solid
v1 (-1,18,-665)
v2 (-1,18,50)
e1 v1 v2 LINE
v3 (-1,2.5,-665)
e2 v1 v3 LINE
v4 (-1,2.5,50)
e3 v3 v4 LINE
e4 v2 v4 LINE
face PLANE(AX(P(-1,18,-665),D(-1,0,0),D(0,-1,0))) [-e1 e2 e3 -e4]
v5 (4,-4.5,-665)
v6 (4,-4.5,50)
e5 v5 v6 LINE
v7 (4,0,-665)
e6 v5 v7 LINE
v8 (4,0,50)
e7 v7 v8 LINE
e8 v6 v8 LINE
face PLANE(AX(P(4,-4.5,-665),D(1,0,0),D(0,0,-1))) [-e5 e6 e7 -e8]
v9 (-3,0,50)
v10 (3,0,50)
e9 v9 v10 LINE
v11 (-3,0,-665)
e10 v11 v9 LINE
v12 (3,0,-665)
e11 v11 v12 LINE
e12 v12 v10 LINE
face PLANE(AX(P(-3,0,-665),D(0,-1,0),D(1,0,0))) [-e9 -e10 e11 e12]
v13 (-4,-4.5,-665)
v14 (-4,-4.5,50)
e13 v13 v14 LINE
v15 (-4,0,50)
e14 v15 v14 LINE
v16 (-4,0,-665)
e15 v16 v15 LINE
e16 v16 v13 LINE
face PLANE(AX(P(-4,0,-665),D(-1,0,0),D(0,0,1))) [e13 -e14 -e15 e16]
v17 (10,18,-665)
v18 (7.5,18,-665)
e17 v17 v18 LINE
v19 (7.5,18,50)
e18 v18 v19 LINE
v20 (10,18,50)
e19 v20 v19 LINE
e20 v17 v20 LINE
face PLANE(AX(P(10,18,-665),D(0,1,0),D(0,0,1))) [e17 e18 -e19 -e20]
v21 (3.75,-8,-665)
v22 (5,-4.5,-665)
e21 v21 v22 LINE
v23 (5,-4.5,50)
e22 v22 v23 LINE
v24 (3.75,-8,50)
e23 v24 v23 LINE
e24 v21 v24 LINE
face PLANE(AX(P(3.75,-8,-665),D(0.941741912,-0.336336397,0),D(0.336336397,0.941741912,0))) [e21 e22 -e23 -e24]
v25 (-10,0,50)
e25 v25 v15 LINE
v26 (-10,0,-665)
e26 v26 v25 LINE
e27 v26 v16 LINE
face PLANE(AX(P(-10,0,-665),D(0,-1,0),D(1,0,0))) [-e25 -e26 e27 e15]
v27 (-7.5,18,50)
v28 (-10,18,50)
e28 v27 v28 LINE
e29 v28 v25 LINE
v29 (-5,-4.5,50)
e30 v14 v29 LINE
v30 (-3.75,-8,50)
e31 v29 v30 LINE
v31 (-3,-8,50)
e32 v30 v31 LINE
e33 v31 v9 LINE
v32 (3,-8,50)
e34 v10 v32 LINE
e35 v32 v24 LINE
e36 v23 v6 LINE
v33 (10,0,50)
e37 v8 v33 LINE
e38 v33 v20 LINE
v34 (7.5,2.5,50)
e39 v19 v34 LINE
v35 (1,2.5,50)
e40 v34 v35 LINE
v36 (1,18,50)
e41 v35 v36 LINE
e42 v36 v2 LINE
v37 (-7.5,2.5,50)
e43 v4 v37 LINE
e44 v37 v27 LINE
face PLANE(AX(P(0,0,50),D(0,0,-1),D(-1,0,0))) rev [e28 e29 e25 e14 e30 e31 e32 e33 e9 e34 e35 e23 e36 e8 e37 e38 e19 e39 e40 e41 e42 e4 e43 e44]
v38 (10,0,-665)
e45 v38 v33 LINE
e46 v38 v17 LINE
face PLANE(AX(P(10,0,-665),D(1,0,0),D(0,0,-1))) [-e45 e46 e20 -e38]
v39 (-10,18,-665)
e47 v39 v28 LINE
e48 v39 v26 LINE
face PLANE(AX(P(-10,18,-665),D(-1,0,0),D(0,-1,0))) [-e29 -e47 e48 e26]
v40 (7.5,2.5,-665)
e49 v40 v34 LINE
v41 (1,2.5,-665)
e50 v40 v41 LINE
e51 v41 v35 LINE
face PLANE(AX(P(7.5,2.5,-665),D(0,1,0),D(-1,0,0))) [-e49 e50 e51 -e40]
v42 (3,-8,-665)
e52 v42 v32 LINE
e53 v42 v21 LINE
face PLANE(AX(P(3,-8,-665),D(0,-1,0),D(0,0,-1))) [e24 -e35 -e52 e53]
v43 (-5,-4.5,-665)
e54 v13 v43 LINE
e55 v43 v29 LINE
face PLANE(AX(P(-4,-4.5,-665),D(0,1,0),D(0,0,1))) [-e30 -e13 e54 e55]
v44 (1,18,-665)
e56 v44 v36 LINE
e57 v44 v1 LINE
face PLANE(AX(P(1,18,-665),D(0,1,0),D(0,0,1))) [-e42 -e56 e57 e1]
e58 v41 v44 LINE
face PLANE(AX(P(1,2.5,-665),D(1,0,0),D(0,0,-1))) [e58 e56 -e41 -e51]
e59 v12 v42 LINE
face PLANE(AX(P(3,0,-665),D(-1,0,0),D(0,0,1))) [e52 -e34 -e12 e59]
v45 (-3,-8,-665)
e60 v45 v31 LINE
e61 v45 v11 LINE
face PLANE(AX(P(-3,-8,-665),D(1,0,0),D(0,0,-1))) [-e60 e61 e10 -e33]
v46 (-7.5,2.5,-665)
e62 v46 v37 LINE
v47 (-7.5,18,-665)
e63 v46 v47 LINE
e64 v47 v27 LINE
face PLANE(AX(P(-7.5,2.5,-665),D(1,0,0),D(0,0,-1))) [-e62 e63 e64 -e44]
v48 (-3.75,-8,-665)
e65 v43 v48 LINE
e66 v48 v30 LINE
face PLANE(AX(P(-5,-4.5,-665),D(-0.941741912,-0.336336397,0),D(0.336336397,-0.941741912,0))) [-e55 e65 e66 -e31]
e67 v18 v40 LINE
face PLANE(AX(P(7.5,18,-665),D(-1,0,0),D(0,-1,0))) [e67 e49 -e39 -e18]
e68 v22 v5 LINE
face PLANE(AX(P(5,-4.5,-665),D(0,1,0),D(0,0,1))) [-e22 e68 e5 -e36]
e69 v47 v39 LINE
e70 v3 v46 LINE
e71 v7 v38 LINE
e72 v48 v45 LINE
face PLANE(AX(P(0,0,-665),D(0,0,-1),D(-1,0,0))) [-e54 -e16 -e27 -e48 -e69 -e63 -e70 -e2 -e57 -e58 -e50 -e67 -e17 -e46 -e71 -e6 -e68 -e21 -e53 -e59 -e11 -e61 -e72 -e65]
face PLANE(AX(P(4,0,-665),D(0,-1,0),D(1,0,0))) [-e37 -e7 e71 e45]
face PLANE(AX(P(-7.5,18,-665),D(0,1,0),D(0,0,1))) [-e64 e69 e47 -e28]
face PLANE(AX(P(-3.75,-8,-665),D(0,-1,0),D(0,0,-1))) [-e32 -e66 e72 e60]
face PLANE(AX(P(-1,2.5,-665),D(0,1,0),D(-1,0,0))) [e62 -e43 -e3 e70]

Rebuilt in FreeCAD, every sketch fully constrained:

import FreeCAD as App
import Part
import Sketcher
from FreeCAD import Vector
Q = App.Units.Quantity


def add_polygon(sketch, points):
    """Adds a closed chain of lines whose ends are joined by coincident constraints."""
    first, n = sketch.GeometryCount, len(points)
    for a, b in zip(points, points[1:] + points[:1]):
        sketch.addGeometry(Part.LineSegment(App.Vector(*a, 0), App.Vector(*b, 0)), False)
    for i in range(n):
        sketch.addConstraint(Sketcher.Constraint("Coincident", first + i, 2, first + (i + 1) % n, 1))

doc = App.newDocument("Part")
body = doc.addObject("PartDesign::Body", "Body")

# Sketch on XY plane
sketch1 = doc.addObject("Sketcher::SketchObject", "Sketch")
body.addObject(sketch1)
sketch1.AttachmentSupport = (doc.XY_Plane, [""])
sketch1.MapMode = "FlatFace"
sketch1.AttachmentOffset = App.Placement(Vector(0, 0, 50), App.Rotation())
add_polygon(sketch1, [(-1, 2.5), (-7.5, 2.5), (-7.5, 18), (-10, 18), (-10, 0), (-4, 0), (-4, -4.5), (-5, -4.5), (-3.8, -8), (-3, -8), (-3, 0), (3, 0), (3, -8), (3.8, -8), (5, -4.5), (4, -4.5), (4, 0), (10, 0), (10, 18), (7.5, 18), (7.5, 2.5), (1, 2.5), (1, 18), (-1, 18)])  # lines 0-23
sketch1.addConstraint(Sketcher.Constraint("Horizontal", 0))
sketch1.addConstraint(Sketcher.Constraint("Vertical", 1))
sketch1.addConstraint(Sketcher.Constraint("Horizontal", 2))
sketch1.addConstraint(Sketcher.Constraint("Vertical", 3))
sketch1.addConstraint(Sketcher.Constraint("Horizontal", 4))
sketch1.addConstraint(Sketcher.Constraint("Vertical", 5))
sketch1.addConstraint(Sketcher.Constraint("Horizontal", 6))
sketch1.addConstraint(Sketcher.Constraint("Horizontal", 8))
sketch1.addConstraint(Sketcher.Constraint("Vertical", 9))
sketch1.addConstraint(Sketcher.Constraint("Horizontal", 10))
sketch1.addConstraint(Sketcher.Constraint("Vertical", 11))
sketch1.addConstraint(Sketcher.Constraint("Horizontal", 12))
sketch1.addConstraint(Sketcher.Constraint("Horizontal", 14))
sketch1.addConstraint(Sketcher.Constraint("Vertical", 15))
sketch1.addConstraint(Sketcher.Constraint("Horizontal", 16))
sketch1.addConstraint(Sketcher.Constraint("Vertical", 17))
sketch1.addConstraint(Sketcher.Constraint("Horizontal", 18))
sketch1.addConstraint(Sketcher.Constraint("Vertical", 19))
sketch1.addConstraint(Sketcher.Constraint("Horizontal", 20))
sketch1.addConstraint(Sketcher.Constraint("Vertical", 21))
sketch1.addConstraint(Sketcher.Constraint("Horizontal", 22))
sketch1.addConstraint(Sketcher.Constraint("Vertical", 23))
sketch1.addConstraint(Sketcher.Constraint("Symmetric", 9, 2, 10, 2, -1, 1))
sketch1.addConstraint(Sketcher.Constraint("Symmetric", 4, 2, 15, 2, -1, 1))
sketch1.addConstraint(Sketcher.Constraint("Symmetric", 7, 2, 12, 2, -2))
sketch1.addConstraint(Sketcher.Constraint("Symmetric", 6, 2, 13, 2, -2))
sketch1.addConstraint(Sketcher.Constraint("Symmetric", 3, 2, 16, 2, -2))
sketch1.addConstraint(Sketcher.Constraint("Symmetric", 1, 2, 18, 2, -2))
sketch1.addConstraint(Sketcher.Constraint("Symmetric", 20, 2, 23, 2, -2))
sketch1.addConstraint(Sketcher.Constraint("Horizontal", 18, 2, 21, 2))
sketch1.addConstraint(Sketcher.Constraint("Equal", 4, 10))
sketch1.addConstraint(Sketcher.Constraint("DistanceX", 4, 1, 4, 2, Q("6 mm")))
sketch1.addConstraint(Sketcher.Constraint("DistanceX", 6, 2, 6, 1, Q("1 mm")))
sketch1.addConstraint(Sketcher.Constraint("DistanceX", 22, 2, 22, 1, Q("2 mm")))
sketch1.addConstraint(Sketcher.Constraint("DistanceY", 3, 2, 3, 1, Q("18 mm")))
sketch1.addConstraint(Sketcher.Constraint("DistanceY", 9, 1, 9, 2, Q("8 mm")))
sketch1.addConstraint(Sketcher.Constraint("DistanceX", 0, 2, 0, 1, Q("6.5 mm")))
sketch1.addConstraint(Sketcher.Constraint("DistanceX", 2, 2, 2, 1, Q("2.5 mm")))
sketch1.addConstraint(Sketcher.Constraint("DistanceY", 1, 1, 1, 2, Q("15.5 mm")))
sketch1.addConstraint(Sketcher.Constraint("DistanceY", 5, 2, 5, 1, Q("4.5 mm")))
sketch1.addConstraint(Sketcher.Constraint("DistanceX", 8, 1, 8, 2, Q("0.75 mm")))
pad1 = doc.addObject("PartDesign::Pad", "Pad")
body.addObject(pad1)
pad1.Profile = sketch1
pad1.Length = 715
pad1.Reversed = True

doc.recompute()
